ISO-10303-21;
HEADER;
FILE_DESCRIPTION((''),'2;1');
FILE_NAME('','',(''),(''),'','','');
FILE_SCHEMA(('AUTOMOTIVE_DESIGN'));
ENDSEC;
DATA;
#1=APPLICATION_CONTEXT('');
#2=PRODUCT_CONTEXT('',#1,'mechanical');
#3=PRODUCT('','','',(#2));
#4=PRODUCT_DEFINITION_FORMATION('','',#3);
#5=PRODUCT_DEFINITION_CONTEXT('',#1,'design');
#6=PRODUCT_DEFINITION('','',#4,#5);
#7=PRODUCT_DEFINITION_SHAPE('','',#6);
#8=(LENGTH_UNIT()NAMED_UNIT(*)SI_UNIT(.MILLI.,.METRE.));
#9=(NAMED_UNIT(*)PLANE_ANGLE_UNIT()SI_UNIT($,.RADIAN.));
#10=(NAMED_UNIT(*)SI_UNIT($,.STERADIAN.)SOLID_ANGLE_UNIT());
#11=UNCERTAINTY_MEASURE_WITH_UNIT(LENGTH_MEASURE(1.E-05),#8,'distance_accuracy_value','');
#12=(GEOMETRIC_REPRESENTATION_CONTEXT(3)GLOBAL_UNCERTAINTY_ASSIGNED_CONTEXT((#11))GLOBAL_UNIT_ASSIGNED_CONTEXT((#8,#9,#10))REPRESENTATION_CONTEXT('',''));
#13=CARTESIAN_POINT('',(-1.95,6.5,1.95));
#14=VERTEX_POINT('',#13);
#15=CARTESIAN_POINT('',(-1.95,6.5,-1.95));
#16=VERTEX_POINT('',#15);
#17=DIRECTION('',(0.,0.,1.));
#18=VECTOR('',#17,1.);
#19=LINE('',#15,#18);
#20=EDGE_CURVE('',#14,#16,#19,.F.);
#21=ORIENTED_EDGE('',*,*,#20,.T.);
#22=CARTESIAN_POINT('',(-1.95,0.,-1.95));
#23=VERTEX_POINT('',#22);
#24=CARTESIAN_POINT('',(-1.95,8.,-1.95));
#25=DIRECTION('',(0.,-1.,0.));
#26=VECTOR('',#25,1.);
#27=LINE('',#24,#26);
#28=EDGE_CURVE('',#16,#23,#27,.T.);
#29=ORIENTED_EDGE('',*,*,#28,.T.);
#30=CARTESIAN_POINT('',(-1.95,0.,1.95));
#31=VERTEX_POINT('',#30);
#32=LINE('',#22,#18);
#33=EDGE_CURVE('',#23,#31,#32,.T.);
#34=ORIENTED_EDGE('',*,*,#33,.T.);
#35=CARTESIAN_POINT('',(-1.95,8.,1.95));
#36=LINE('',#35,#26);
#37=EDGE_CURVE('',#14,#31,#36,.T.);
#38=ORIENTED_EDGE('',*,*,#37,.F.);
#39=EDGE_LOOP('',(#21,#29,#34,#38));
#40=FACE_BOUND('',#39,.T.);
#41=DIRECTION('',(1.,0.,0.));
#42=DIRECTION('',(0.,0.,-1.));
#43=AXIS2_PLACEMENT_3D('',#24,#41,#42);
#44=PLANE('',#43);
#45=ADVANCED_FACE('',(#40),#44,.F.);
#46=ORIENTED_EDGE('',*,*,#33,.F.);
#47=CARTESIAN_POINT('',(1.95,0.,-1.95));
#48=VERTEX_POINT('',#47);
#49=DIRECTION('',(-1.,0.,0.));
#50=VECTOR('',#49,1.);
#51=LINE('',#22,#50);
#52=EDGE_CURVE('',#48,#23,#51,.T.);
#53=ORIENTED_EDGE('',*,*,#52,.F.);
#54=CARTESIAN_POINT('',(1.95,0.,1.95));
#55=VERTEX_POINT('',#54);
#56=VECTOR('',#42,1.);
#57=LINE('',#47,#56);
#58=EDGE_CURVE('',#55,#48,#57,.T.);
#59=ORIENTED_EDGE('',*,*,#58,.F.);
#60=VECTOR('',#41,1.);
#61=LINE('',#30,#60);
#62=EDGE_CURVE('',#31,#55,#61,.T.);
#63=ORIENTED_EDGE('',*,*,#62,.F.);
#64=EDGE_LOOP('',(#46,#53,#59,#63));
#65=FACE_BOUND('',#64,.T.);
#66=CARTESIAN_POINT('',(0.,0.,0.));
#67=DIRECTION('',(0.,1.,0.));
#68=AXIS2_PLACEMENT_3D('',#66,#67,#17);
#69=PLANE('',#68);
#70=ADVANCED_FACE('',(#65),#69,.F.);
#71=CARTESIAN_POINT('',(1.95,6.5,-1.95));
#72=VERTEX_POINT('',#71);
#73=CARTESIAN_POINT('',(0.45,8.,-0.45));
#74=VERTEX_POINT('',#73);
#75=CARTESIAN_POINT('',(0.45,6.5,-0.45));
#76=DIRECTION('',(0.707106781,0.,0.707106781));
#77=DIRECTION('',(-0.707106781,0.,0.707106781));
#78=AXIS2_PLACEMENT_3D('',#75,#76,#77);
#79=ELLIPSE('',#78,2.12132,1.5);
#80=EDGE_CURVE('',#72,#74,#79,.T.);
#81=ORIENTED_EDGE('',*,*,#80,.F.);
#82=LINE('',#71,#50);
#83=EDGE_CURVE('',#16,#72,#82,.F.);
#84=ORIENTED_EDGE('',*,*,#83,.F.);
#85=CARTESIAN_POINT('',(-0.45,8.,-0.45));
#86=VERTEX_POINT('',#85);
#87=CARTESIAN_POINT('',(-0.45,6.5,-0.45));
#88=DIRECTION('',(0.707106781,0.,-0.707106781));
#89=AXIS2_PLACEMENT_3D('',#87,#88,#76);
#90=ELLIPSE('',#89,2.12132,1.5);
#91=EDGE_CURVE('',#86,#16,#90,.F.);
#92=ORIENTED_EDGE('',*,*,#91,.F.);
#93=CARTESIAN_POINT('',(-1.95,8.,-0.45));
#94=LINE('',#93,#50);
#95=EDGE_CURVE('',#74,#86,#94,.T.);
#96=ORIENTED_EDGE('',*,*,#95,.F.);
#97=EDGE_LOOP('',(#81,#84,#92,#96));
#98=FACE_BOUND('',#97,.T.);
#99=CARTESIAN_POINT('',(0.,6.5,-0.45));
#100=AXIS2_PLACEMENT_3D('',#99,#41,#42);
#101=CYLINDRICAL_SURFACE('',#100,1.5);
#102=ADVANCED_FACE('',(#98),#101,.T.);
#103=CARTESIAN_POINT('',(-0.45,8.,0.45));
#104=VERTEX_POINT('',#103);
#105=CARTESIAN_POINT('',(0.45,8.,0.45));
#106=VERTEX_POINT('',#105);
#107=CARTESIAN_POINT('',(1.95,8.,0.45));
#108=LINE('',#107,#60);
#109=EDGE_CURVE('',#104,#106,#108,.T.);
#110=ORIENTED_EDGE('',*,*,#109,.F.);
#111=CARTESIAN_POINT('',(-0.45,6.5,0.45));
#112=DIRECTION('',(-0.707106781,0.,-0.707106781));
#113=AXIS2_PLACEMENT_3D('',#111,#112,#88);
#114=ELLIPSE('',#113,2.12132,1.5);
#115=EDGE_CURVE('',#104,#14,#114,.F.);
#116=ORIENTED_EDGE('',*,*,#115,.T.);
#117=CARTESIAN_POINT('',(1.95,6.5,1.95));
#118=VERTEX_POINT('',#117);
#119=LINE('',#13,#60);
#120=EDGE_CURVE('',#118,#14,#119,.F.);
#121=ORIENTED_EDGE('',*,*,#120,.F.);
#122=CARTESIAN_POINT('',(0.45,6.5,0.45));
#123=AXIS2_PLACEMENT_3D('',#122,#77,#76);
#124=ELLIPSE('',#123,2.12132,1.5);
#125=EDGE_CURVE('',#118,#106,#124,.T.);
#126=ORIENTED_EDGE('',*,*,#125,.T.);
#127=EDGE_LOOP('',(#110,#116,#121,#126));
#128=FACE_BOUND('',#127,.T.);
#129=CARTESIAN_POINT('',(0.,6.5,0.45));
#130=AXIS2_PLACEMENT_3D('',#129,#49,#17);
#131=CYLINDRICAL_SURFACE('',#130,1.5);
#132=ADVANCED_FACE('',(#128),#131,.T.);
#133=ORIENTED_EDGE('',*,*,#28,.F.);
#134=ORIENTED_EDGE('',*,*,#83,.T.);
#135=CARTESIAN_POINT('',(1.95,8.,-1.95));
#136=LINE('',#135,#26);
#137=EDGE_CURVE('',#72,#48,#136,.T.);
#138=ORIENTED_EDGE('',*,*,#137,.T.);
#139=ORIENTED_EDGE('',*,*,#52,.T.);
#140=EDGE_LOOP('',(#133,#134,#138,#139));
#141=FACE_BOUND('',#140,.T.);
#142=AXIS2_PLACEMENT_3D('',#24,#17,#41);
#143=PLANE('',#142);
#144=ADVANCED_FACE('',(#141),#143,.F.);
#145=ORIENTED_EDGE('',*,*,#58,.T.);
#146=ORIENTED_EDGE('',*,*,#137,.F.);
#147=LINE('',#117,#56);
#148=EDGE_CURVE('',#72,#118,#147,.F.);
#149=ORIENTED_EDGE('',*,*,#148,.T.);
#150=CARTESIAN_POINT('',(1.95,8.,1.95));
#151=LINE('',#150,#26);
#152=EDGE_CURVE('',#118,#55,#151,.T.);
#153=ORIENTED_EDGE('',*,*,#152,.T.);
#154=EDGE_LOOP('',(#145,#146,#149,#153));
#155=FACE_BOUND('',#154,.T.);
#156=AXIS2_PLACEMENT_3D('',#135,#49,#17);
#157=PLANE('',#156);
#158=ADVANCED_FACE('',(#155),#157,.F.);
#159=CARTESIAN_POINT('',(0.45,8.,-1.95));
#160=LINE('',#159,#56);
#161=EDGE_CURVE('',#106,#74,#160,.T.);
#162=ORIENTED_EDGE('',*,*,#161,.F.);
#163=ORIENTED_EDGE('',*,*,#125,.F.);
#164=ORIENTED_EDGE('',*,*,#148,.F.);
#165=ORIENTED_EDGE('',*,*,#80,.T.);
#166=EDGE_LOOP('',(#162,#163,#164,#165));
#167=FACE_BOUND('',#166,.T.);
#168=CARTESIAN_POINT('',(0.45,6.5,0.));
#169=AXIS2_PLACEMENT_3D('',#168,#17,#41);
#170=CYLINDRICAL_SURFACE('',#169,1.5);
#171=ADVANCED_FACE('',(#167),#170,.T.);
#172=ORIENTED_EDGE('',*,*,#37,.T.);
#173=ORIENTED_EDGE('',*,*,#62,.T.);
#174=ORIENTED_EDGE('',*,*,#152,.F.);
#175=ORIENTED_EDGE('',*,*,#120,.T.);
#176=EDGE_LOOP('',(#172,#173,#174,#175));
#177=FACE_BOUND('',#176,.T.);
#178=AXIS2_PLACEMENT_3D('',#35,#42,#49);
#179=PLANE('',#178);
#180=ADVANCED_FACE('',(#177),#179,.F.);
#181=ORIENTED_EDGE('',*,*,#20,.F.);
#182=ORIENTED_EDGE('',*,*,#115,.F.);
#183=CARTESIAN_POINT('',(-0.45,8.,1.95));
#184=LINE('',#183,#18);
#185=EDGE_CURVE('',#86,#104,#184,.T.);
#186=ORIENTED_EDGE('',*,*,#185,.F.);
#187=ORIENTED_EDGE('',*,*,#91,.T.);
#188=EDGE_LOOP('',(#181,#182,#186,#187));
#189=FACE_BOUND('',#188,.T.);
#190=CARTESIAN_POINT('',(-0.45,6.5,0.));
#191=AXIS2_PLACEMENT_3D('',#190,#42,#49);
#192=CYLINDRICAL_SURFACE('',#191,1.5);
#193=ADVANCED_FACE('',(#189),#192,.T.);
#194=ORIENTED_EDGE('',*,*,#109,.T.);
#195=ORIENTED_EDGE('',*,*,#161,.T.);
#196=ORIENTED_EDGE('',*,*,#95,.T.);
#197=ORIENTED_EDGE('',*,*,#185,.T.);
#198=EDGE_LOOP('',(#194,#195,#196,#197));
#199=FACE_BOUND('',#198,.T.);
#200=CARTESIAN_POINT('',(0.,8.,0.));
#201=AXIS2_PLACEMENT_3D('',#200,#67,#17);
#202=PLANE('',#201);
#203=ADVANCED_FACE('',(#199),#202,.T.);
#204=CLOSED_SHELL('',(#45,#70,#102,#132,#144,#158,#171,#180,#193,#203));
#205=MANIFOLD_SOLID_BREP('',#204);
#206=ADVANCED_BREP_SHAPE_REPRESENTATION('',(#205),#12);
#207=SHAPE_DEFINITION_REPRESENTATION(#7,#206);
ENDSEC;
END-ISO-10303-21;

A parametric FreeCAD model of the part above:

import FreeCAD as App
import Part
import Sketcher
Q = App.Units.Quantity


def edges_at(feature, points):
    """Names of the edges that pass closest to the given points."""
    edges = feature.Shape.Edges
    near = lambda p: min(range(len(edges)), key=lambda i: edges[i].distToShape(Part.Vertex(*p))[0])
    return sorted({f"Edge{near(p) + 1}" for p in points})

doc = App.newDocument("Part")
body = doc.addObject("PartDesign::Body", "Body")

# Sketch on XZ plane
sketch1 = body.newObject("Sketcher::SketchObject", "Sketch")
sketch1.AttachmentSupport = (doc.getObject("XZ_Plane"), [""])
sketch1.MapMode = "FlatFace"
sketch1.addGeometry([
    Part.LineSegment(App.Vector(-1.95, -1.95, 0), App.Vector(-1.95, 1.95, 0)),
    Part.LineSegment(App.Vector(-1.95, 1.95, 0), App.Vector(1.95, 1.95, 0)),
    Part.LineSegment(App.Vector(1.95, 1.95, 0), App.Vector(1.95, -1.95, 0)),
    Part.LineSegment(App.Vector(1.95, -1.95, 0), App.Vector(-1.95, -1.95, 0)),
], False)
sketch1.addConstraint([
    Sketcher.Constraint("Coincident", 0, 2, 1, 1),
    Sketcher.Constraint("Coincident", 1, 2, 2, 1),
    Sketcher.Constraint("Coincident", 2, 2, 3, 1),
    Sketcher.Constraint("Coincident", 3, 2, 0, 1),
    Sketcher.Constraint("Vertical", 0),
    Sketcher.Constraint("Horizontal", 1),
    Sketcher.Constraint("Vertical", 2),
    Sketcher.Constraint("Horizontal", 3),
    Sketcher.Constraint("Symmetric", 0, 2, 2, 2, -1, 1),
    Sketcher.Constraint("Equal", 3, 0),
    Sketcher.Constraint("DistanceX", 1, 1, 1, 2, Q("3.9 mm")),
])
pad1 = body.newObject("PartDesign::Pad", "Pad")
pad1.Profile = sketch1
pad1.Length = 8
pad1.Reversed = True
doc.recompute()

fillet = body.newObject("PartDesign::Fillet", "Fillet")
fillet.Base = (pad1, edges_at(pad1, [
    (-1.95, 8, 0),
    (0, 8, 1.95),
    (1.95, 8, 0),
    (0, 8, -1.95),
]))
fillet.Radius = 1.5

doc.recompute()
